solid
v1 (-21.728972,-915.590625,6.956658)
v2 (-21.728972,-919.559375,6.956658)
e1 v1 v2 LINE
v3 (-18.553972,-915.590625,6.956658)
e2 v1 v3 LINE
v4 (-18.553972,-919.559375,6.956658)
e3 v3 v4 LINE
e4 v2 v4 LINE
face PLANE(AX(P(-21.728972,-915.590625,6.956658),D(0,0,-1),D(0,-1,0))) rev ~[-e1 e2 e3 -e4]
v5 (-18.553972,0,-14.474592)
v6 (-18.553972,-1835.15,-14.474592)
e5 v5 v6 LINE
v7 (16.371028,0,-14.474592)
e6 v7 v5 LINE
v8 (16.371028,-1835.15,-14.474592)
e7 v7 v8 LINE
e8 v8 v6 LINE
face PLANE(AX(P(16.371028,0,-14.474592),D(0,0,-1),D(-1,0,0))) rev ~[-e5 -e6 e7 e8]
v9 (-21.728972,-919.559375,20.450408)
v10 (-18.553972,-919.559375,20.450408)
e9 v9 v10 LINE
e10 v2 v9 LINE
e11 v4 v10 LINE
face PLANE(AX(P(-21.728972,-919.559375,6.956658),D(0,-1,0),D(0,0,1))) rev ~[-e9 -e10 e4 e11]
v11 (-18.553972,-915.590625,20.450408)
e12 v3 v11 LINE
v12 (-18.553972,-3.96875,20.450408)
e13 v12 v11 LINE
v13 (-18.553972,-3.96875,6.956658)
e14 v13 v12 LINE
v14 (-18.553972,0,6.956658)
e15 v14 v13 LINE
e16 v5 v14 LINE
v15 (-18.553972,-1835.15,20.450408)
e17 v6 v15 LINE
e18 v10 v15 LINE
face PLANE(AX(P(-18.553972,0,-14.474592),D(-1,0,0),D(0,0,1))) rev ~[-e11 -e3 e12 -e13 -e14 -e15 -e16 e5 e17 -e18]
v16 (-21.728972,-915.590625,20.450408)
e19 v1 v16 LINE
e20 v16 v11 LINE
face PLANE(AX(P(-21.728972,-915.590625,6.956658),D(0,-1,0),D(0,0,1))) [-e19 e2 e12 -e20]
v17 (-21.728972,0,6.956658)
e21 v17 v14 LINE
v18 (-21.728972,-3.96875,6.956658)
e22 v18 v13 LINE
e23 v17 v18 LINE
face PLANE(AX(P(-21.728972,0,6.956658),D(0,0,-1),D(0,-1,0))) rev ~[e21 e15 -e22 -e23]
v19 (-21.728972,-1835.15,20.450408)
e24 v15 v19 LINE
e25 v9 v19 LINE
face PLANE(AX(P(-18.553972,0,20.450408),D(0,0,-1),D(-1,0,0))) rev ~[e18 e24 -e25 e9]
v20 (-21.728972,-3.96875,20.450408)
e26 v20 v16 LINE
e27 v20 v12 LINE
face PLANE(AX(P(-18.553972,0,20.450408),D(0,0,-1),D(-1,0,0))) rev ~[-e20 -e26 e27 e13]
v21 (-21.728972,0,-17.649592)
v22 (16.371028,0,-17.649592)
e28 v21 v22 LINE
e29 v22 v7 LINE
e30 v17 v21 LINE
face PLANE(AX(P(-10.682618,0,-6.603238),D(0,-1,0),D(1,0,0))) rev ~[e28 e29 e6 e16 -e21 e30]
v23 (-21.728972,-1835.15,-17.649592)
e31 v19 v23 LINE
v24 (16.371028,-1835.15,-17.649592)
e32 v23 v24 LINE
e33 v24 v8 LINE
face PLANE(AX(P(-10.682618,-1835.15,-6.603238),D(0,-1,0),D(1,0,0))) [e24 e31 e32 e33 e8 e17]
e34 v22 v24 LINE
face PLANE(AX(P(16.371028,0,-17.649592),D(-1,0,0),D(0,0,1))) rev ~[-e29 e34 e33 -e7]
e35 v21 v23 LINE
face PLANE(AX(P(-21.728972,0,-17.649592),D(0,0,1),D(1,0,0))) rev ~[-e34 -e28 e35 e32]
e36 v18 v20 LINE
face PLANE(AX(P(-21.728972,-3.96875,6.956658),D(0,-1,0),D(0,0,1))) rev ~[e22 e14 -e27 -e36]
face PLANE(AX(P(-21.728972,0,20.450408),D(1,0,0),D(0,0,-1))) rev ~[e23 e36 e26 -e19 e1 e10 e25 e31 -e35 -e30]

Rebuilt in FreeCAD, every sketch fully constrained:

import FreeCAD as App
import Part
import Sketcher

V = App.Vector
Q = App.Units.Quantity


def add_polygon(sketch, points):
    """Adds a closed chain of lines whose ends are joined by coincident constraints."""
    first, n = sketch.GeometryCount, len(points)
    for a, b in zip(points, points[1:] + points[:1]):
        sketch.addGeometry(Part.LineSegment(App.Vector(*a, 0), App.Vector(*b, 0)), False)
    for i in range(n):
        sketch.addConstraint(Sketcher.Constraint("Coincident", first + i, 2, first + (i + 1) % n, 1))

doc = App.newDocument("Part")
params = doc.addObject("Spreadsheet::Sheet", "Params")
for row, (alias, value) in enumerate([
    ("sketch1_width", "1.5 in"),
    ("sketch1_width2", "0.125 in"),
    ("pad1_length", "72.25 in"),
    ("sketch2_width", "0.15625 in"),
    ("sketch2_height", "0.53125 in"),
    ("pocket1_length", "1 in"),
], start=1):
    params.set(f"A{row}", alias)
    params.set(f"B{row}", "=" + value)
    params.setAlias(f"B{row}", alias)

body = doc.addObject("PartDesign::Body", "Body")

# Sketch on XZ plane
sketch1 = body.newObject("Sketcher::SketchObject", "Sketch")
sketch1.AttachmentSupport = (doc.getObject("XZ_Plane"), [""])
sketch1.MapMode = "FlatFace"
add_polygon(sketch1, [(-18.553972, 20.450408), (-21.728972, 20.450408), (-21.728972, -17.649592), (16.371028, -17.649592), (16.371028, -14.474592), (-18.553972, -14.474592)])  # lines 0-5
sketch1.addConstraint(Sketcher.Constraint("Horizontal", 0))
sketch1.addConstraint(Sketcher.Constraint("Vertical", 1))
sketch1.addConstraint(Sketcher.Constraint("Horizontal", 2))
sketch1.addConstraint(Sketcher.Constraint("Vertical", 3))
sketch1.addConstraint(Sketcher.Constraint("Horizontal", 4))
sketch1.addConstraint(Sketcher.Constraint("Vertical", 5))
sketch1.addConstraint(Sketcher.Constraint("Equal", 2, 1))
sketch1.addConstraint(Sketcher.Constraint("Equal", 0, 3))
sketch1.addConstraint(Sketcher.Constraint("DistanceX", 2, 1, 2, 2, Q("1.5 in")))
sketch1.addConstraint(Sketcher.Constraint("DistanceX", 0, 2, 0, 1, Q("0.125 in")))
sketch1.addConstraint(Sketcher.Constraint("DistanceX", 0, 2, -1, 1, Q("21.728972 mm")))
sketch1.addConstraint(Sketcher.Constraint("DistanceY", 1, 2, -1, 1, Q("17.649592 mm")))
sketch1.setExpression("Constraints[14]", "Params.sketch1_width")
sketch1.setExpression("Constraints[15]", "Params.sketch1_width2")
pad1 = body.newObject("PartDesign::Pad", "Pad")
pad1.Profile = sketch1
pad1.setExpression("Length", "Params.pad1_length")

# Sketch on YZ plane
sketch2 = body.newObject("Sketcher::SketchObject", "Sketch001")
sketch2.AttachmentSupport = (doc.getObject("YZ_Plane"), [""])
sketch2.MapMode = "FlatFace"
sketch2.AttachmentOffset = App.Placement(V(0, 0, -21.728972), App.Rotation())
add_polygon(sketch2, [(-915.590625, 20.450408), (-915.590625, 6.956658), (-919.559375, 6.956658), (-919.559375, 20.450408)])  # lines 0-3
add_polygon(sketch2, [(0, 20.450408), (0, 6.956658), (-3.96875, 6.956658), (-3.96875, 20.450408)])  # lines 4-7
sketch2.addConstraint(Sketcher.Constraint("Vertical", 0))
sketch2.addConstraint(Sketcher.Constraint("Horizontal", 1))
sketch2.addConstraint(Sketcher.Constraint("Vertical", 2))
sketch2.addConstraint(Sketcher.Constraint("Horizontal", 3))
sketch2.addConstraint(Sketcher.Constraint("Vertical", 4))
sketch2.addConstraint(Sketcher.Constraint("Horizontal", 5))
sketch2.addConstraint(Sketcher.Constraint("Vertical", 6))
sketch2.addConstraint(Sketcher.Constraint("Horizontal", 7))
sketch2.addConstraint(Sketcher.Constraint("PointOnObject", 4, 2, -2))
sketch2.addConstraint(Sketcher.Constraint("Horizontal", 1, 2, 4, 2))
sketch2.addConstraint(Sketcher.Constraint("Horizontal", 3, 2, 6, 2))
sketch2.addConstraint(Sketcher.Constraint("Equal", 3, 5))
sketch2.addConstraint(Sketcher.Constraint("DistanceX", 1, 2, 1, 1, Q("0.15625 in")))
sketch2.addConstraint(Sketcher.Constraint("DistanceY", 0, 2, 0, 1, Q("0.53125 in")))
sketch2.addConstraint(Sketcher.Constraint("DistanceX", 0, 2, -1, 1, Q("36.046875 in")))
sketch2.addConstraint(Sketcher.Constraint("DistanceY", -1, 1, 0, 2, Q("6.956658 mm")))
sketch2.setExpression("Constraints[20]", "Params.sketch2_width")
sketch2.setExpression("Constraints[21]", "Params.sketch2_height")
pocket1 = body.newObject("PartDesign::Pocket", "Pocket")
pocket1.Profile = sketch2
pocket1.setExpression("Length", "Params.pocket1_length")
pocket1.Reversed = True

doc.recompute()
